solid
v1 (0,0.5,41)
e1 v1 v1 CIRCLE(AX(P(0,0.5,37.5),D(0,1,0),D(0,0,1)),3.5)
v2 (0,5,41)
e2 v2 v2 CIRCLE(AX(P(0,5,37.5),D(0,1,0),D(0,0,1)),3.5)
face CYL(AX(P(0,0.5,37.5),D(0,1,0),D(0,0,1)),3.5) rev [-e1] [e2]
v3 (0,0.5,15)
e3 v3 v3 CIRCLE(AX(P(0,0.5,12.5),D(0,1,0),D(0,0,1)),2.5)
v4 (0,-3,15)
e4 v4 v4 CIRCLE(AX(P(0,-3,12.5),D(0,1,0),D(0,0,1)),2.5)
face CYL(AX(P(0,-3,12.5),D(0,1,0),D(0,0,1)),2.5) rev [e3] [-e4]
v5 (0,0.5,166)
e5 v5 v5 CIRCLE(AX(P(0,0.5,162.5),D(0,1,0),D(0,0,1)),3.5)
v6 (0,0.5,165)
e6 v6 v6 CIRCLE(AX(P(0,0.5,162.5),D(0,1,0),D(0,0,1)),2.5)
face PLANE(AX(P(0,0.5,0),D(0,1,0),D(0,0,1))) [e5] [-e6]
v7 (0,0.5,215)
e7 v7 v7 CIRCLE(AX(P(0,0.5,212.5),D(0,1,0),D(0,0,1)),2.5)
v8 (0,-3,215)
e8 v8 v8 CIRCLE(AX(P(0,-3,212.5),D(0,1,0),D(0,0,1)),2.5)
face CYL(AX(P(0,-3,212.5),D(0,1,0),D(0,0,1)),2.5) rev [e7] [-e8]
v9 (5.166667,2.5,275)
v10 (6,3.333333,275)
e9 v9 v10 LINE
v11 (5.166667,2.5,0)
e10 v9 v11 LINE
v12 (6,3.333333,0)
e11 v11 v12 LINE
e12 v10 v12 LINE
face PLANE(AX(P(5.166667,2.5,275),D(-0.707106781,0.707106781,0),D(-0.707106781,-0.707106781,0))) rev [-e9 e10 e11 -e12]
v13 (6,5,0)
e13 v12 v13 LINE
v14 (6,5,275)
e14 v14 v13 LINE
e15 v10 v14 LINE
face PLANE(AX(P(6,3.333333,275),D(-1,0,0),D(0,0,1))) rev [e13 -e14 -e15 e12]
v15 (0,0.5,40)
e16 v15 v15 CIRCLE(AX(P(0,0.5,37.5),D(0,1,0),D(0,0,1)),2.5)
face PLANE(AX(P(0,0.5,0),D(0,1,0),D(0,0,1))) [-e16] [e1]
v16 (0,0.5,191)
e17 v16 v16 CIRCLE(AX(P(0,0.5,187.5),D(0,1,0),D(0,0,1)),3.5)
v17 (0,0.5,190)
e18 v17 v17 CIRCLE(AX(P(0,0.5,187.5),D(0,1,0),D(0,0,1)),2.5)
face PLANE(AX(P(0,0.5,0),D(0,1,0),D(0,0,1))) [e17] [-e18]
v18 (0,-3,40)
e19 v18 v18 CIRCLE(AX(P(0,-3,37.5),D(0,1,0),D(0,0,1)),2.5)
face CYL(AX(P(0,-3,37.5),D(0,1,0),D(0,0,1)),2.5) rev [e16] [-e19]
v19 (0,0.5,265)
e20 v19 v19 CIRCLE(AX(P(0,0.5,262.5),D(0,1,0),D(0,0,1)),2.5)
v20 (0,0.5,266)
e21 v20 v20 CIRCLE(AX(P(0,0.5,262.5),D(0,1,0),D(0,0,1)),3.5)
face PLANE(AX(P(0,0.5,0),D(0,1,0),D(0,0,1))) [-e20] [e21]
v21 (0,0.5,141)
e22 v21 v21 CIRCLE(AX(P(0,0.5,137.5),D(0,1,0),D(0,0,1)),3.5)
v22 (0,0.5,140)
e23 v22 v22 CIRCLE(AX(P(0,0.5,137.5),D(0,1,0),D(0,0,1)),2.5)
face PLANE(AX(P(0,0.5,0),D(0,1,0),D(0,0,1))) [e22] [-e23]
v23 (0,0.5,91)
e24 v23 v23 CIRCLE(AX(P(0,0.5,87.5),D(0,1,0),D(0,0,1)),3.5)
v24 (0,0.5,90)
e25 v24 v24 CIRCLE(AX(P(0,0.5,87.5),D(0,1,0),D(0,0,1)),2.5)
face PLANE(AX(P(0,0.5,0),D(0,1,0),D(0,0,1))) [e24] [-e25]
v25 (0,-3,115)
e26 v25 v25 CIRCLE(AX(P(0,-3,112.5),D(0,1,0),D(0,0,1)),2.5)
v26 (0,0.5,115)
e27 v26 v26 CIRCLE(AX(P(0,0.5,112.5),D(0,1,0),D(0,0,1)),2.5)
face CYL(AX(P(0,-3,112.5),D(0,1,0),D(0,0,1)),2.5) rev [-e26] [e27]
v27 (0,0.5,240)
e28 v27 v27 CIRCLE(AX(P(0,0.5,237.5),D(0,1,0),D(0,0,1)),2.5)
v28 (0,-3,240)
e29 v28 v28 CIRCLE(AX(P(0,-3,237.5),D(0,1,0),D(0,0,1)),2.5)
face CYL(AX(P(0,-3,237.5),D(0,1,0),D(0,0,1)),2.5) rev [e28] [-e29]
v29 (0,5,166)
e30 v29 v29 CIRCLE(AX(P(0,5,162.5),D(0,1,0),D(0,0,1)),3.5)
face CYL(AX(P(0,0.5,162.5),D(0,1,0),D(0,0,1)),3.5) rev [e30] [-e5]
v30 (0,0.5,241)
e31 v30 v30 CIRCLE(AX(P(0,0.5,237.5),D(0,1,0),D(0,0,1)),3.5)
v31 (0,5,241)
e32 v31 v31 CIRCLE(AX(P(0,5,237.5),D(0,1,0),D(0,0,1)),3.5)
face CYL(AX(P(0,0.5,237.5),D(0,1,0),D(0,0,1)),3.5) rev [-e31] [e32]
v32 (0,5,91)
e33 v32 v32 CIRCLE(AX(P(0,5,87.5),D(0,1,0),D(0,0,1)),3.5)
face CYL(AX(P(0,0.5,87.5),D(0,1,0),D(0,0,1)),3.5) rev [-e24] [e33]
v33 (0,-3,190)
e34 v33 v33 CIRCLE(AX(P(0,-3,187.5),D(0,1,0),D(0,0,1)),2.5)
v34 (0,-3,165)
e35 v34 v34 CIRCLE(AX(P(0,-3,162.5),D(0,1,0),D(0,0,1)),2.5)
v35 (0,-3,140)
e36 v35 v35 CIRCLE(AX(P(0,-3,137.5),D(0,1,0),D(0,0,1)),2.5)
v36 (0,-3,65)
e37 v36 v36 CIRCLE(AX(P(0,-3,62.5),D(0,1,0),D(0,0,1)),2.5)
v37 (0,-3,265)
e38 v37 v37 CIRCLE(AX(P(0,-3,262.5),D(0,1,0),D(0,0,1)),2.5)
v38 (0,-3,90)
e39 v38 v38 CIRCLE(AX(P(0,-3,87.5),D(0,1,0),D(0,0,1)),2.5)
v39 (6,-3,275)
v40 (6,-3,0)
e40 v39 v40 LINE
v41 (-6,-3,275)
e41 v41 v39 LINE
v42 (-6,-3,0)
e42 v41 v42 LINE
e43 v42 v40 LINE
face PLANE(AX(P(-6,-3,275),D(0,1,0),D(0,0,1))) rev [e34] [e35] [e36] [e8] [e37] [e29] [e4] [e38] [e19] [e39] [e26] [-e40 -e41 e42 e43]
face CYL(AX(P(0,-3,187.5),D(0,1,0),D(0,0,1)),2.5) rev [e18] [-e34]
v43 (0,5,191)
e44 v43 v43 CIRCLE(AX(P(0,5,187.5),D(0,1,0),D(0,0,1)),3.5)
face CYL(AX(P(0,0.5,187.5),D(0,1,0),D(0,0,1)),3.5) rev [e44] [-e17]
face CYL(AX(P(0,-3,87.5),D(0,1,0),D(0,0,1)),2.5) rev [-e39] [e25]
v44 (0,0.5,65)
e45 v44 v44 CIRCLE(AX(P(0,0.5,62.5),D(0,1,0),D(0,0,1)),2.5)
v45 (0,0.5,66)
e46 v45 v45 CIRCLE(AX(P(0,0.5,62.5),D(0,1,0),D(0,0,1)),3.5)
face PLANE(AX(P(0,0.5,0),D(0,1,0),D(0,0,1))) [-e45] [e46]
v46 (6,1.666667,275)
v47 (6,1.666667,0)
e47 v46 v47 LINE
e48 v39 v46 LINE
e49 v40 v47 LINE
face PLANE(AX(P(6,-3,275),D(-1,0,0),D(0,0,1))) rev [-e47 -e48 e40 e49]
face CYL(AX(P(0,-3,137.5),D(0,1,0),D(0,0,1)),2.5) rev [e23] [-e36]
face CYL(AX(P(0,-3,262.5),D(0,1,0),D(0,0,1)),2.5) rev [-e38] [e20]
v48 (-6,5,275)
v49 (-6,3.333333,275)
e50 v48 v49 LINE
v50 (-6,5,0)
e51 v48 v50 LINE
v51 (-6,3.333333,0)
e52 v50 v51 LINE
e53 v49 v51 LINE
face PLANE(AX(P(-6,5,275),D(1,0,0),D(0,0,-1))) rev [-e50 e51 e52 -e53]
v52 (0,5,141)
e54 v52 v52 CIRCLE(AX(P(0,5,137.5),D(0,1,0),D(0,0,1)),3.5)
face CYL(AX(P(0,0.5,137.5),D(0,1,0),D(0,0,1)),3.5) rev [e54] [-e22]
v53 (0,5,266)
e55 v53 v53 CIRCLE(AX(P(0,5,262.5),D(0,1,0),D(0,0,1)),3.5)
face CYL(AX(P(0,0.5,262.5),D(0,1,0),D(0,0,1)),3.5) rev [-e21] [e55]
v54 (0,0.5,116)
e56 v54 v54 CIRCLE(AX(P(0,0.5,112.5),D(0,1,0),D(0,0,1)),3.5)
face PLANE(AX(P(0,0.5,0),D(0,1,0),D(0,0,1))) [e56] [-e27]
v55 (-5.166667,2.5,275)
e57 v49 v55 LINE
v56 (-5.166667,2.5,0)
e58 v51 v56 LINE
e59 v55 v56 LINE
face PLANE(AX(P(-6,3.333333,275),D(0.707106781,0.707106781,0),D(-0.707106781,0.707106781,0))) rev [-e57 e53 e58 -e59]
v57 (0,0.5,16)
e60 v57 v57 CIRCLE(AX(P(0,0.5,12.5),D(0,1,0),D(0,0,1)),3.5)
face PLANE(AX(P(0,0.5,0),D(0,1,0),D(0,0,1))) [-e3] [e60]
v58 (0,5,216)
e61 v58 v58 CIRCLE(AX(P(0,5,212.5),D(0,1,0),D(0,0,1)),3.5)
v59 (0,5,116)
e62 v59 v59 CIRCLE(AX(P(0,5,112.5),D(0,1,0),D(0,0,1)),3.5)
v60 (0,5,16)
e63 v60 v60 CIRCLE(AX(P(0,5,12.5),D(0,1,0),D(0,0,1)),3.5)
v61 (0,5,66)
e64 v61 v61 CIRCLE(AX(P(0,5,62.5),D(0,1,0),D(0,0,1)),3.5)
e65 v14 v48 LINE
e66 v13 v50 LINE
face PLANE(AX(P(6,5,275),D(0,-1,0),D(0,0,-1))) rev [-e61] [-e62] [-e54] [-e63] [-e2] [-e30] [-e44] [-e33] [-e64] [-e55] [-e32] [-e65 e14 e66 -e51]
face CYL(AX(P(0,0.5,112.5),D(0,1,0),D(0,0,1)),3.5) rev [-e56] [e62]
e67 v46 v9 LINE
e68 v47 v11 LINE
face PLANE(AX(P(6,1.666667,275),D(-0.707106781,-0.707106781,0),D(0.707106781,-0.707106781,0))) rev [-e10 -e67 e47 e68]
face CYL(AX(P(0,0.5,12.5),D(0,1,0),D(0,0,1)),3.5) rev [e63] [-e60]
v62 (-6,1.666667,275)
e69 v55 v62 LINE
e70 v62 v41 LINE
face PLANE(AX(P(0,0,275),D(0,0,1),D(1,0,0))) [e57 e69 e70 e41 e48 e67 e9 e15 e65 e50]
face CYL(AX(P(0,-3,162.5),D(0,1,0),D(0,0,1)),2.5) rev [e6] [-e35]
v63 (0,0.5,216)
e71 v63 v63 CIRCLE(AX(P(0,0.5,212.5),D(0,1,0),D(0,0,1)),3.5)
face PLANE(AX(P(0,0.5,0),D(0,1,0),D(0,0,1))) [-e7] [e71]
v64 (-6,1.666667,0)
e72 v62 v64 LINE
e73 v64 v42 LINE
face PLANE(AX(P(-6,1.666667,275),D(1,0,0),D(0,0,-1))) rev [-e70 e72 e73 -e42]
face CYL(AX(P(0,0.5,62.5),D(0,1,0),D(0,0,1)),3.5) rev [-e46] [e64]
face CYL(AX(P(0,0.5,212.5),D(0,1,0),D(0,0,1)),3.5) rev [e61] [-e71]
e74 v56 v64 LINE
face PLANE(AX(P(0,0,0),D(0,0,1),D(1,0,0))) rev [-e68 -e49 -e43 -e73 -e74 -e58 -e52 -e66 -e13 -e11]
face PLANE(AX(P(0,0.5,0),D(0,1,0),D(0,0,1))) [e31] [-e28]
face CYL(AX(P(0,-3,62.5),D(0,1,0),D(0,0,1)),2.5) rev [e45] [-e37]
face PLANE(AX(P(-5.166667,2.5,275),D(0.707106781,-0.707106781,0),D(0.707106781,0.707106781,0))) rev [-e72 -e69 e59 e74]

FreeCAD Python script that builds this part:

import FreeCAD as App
import Part
import Sketcher

V = App.Vector
Q = App.Units.Quantity

doc = App.newDocument("Part")
params = doc.addObject("Spreadsheet::Sheet", "Params")
for row, (alias, value) in enumerate([
    ("sketch1_width", "12 mm"),
    ("pad1_length", "275 mm"),
    ("sketch2_diameter", "5 mm"),
    ("sketch3_diameter", "7 mm"),
    ("sketch3_diameter2", "5 mm"),
    ("pocket2_length", "4.5 mm"),
], start=1):
    params.set(f"A{row}", alias)
    params.set(f"B{row}", "=" + value)
    params.setAlias(f"B{row}", alias)

body = doc.addObject("PartDesign::Body", "Body")

# Sketch on XY plane
sketch1 = body.newObject("Sketcher::SketchObject", "Sketch")
sketch1.AttachmentSupport = (doc.getObject("XY_Plane"), [""])
sketch1.MapMode = "FlatFace"
sketch1.addGeometry([
    Part.LineSegment(V(6, -3, 0), V(6, 1.7, 0)),  # 0
    Part.LineSegment(V(6, 1.7, 0), V(5.2, 2.5, 0)),  # 1
    Part.LineSegment(V(5.2, 2.5, 0), V(6, 3.3, 0)),  # 2
    Part.LineSegment(V(6, 3.3, 0), V(6, 5, 0)),  # 3
    Part.LineSegment(V(6, 5, 0), V(-6, 5, 0)),  # 4
    Part.LineSegment(V(-6, 5, 0), V(-6, 3.3, 0)),  # 5
    Part.LineSegment(V(-6, 3.3, 0), V(-5.2, 2.5, 0)),  # 6
    Part.LineSegment(V(-5.2, 2.5, 0), V(-6, 1.7, 0)),  # 7
    Part.LineSegment(V(-6, 1.7, 0), V(-6, -3, 0)),  # 8
    Part.LineSegment(V(-6, -3, 0), V(6, -3, 0)),  # 9
], False)
sketch1.addConstraint([
    Sketcher.Constraint("Coincident", 0, 2, 1, 1),
    Sketcher.Constraint("Coincident", 1, 2, 2, 1),
    Sketcher.Constraint("Coincident", 2, 2, 3, 1),
    Sketcher.Constraint("Coincident", 3, 2, 4, 1),
    Sketcher.Constraint("Coincident", 4, 2, 5, 1),
    Sketcher.Constraint("Coincident", 5, 2, 6, 1),
    Sketcher.Constraint("Coincident", 6, 2, 7, 1),
    Sketcher.Constraint("Coincident", 7, 2, 8, 1),
    Sketcher.Constraint("Coincident", 8, 2, 9, 1),
    Sketcher.Constraint("Coincident", 9, 2, 0, 1),
    Sketcher.Constraint("Vertical", 0),
    Sketcher.Constraint("Vertical", 3),
    Sketcher.Constraint("Horizontal", 4),
    Sketcher.Constraint("Vertical", 5),
    Sketcher.Constraint("Vertical", 8),
    Sketcher.Constraint("Horizontal", 9),
    Sketcher.Constraint("Symmetric", 2, 2, 5, 2, -2),
    Sketcher.Constraint("Symmetric", 1, 2, 6, 2, -2),
    Sketcher.Constraint("Symmetric", 0, 2, 7, 2, -2),
    Sketcher.Constraint("Perpendicular", 1, 2),
    Sketcher.Constraint("Perpendicular", 2, 6),
    Sketcher.Constraint("Vertical", 0, 2, 2, 2),
    Sketcher.Constraint("DistanceX", 4, 2, 4, 1, Q("12 mm")),
    Sketcher.Constraint("DistanceY", -1, 1, 3, 2, Q("5 mm")),
    Sketcher.Constraint("DistanceY", 8, 2, -1, 1, Q("3 mm")),
    Sketcher.Constraint("DistanceY", -1, 1, 1, 2, Q("2.5 mm")),
    Sketcher.Constraint("Distance", 1, Q("1.178511 mm")),
])
sketch1.setExpression("Constraints[22]", "Params.sketch1_width")
pad1 = body.newObject("PartDesign::Pad", "Pad")
pad1.Profile = sketch1
pad1.setExpression("Length", "Params.pad1_length")

# Sketch on XZ plane
sketch2 = body.newObject("Sketcher::SketchObject", "Sketch001")
sketch2.AttachmentSupport = (doc.getObject("XZ_Plane"), [""])
sketch2.MapMode = "FlatFace"
sketch2.AttachmentOffset = App.Placement(V(0, 0, -5), App.Rotation())
sketch2.addGeometry([
    Part.Circle(V(0, 12.5, 0), V(0, 0, 1), 2.5),  # 0
    Part.Circle(V(0, 262.5, 0), V(0, 0, 1), 2.5),  # 1
    Part.Circle(V(0, 137.5, 0), V(0, 0, 1), 2.5),  # 2
    Part.Circle(V(0, 37.5, 0), V(0, 0, 1), 2.5),  # 3
    Part.Circle(V(0, 62.5, 0), V(0, 0, 1), 2.5),  # 4
    Part.Circle(V(0, 87.5, 0), V(0, 0, 1), 2.5),  # 5
    Part.Circle(V(0, 112.5, 0), V(0, 0, 1), 2.5),  # 6
    Part.Circle(V(0, 162.5, 0), V(0, 0, 1), 2.5),  # 7
    Part.Circle(V(0, 187.5, 0), V(0, 0, 1), 2.5),  # 8
    Part.Circle(V(0, 212.5, 0), V(0, 0, 1), 2.5),  # 9
    Part.Circle(V(0, 237.5, 0), V(0, 0, 1), 2.5),  # 10
], False)
sketch2.addConstraint([
    Sketcher.Constraint("Equal", 0, 1),
    Sketcher.Constraint("Equal", 1, 2),
    Sketcher.Constraint("Equal", 2, 3),
    Sketcher.Constraint("Equal", 3, 4),
    Sketcher.Constraint("Equal", 4, 5),
    Sketcher.Constraint("Equal", 5, 6),
    Sketcher.Constraint("Equal", 6, 7),
    Sketcher.Constraint("Equal", 7, 8),
    Sketcher.Constraint("Equal", 8, 9),
    Sketcher.Constraint("Equal", 9, 10),
    Sketcher.Constraint("PointOnObject", 0, 3, -2),
    Sketcher.Constraint("PointOnObject", 1, 3, -2),
    Sketcher.Constraint("PointOnObject", 2, 3, -2),
    Sketcher.Constraint("PointOnObject", 3, 3, -2),
    Sketcher.Constraint("PointOnObject", 4, 3, -2),
    Sketcher.Constraint("PointOnObject", 5, 3, -2),
    Sketcher.Constraint("PointOnObject", 6, 3, -2),
    Sketcher.Constraint("PointOnObject", 7, 3, -2),
    Sketcher.Constraint("PointOnObject", 8, 3, -2),
    Sketcher.Constraint("PointOnObject", 9, 3, -2),
    Sketcher.Constraint("PointOnObject", 10, 3, -2),
    Sketcher.Constraint("Diameter", 0, Q("5 mm")),
    Sketcher.Constraint("DistanceY", 0, 3, 1, 3, Q("250 mm")),
    Sketcher.Constraint("DistanceY", 0, 3, 2, 3, Q("125 mm")),
    Sketcher.Constraint("DistanceY", 0, 3, 3, 3, Q("25 mm")),
    Sketcher.Constraint("DistanceY", 3, 3, 4, 3, Q("25 mm")),
    Sketcher.Constraint("DistanceY", 4, 3, 5, 3, Q("25 mm")),
    Sketcher.Constraint("DistanceY", 6, 3, 2, 3, Q("25 mm")),
    Sketcher.Constraint("DistanceY", 2, 3, 7, 3, Q("25 mm")),
    Sketcher.Constraint("DistanceY", 7, 3, 8, 3, Q("25 mm")),
    Sketcher.Constraint("DistanceY", 8, 3, 9, 3, Q("25 mm")),
    Sketcher.Constraint("DistanceY", 10, 3, 1, 3, Q("25 mm")),
    Sketcher.Constraint("DistanceY", -1, 1, 0, 3, Q("12.5 mm")),
])
sketch2.setExpression("Constraints[21]", "Params.sketch2_diameter")
pocket1 = body.newObject("PartDesign::Pocket", "Pocket")
pocket1.Profile = sketch2
pocket1.Type = "ThroughAll"
pocket1.Reversed = True

# Sketch on XZ plane
sketch3 = body.newObject("Sketcher::SketchObject", "Sketch002")
sketch3.AttachmentSupport = (doc.getObject("XZ_Plane"), [""])
sketch3.MapMode = "FlatFace"
sketch3.AttachmentOffset = App.Placement(V(0, 0, -5), App.Rotation())
sketch3.addGeometry([
    Part.Circle(V(0, 12.5, 0), V(0, 0, 1), 3.5),  # 0
    Part.Circle(V(0, 12.5, 0), V(0, 0, 1), 2.5),  # 1
    Part.Circle(V(0, 262.5, 0), V(0, 0, 1), 3.5),  # 2
    Part.Circle(V(0, 262.5, 0), V(0, 0, 1), 2.5),  # 3
    Part.Circle(V(0, 137.5, 0), V(0, 0, 1), 3.5),  # 4
    Part.Circle(V(0, 137.5, 0), V(0, 0, 1), 2.5),  # 5
    Part.Circle(V(0, 37.5, 0), V(0, 0, 1), 3.5),  # 6
    Part.Circle(V(0, 37.5, 0), V(0, 0, 1), 2.5),  # 7
    Part.Circle(V(0, 62.5, 0), V(0, 0, 1), 3.5),  # 8
    Part.Circle(V(0, 62.5, 0), V(0, 0, 1), 2.5),  # 9
    Part.Circle(V(0, 87.5, 0), V(0, 0, 1), 3.5),  # 10
    Part.Circle(V(0, 87.5, 0), V(0, 0, 1), 2.5),  # 11
    Part.Circle(V(0, 112.5, 0), V(0, 0, 1), 3.5),  # 12
    Part.Circle(V(0, 112.5, 0), V(0, 0, 1), 2.5),  # 13
    Part.Circle(V(0, 162.5, 0), V(0, 0, 1), 3.5),  # 14
    Part.Circle(V(0, 162.5, 0), V(0, 0, 1), 2.5),  # 15
    Part.Circle(V(0, 187.5, 0), V(0, 0, 1), 3.5),  # 16
    Part.Circle(V(0, 187.5, 0), V(0, 0, 1), 2.5),  # 17
    Part.Circle(V(0, 212.5, 0), V(0, 0, 1), 3.5),  # 18
    Part.Circle(V(0, 212.5, 0), V(0, 0, 1), 2.5),  # 19
    Part.Circle(V(0, 237.5, 0), V(0, 0, 1), 3.5),  # 20
    Part.Circle(V(0, 237.5, 0), V(0, 0, 1), 2.5),  # 21
], False)
sketch3.addConstraint([
    Sketcher.Constraint("Coincident", 1, 3, 0, 3),
    Sketcher.Constraint("Coincident", 3, 3, 2, 3),
    Sketcher.Constraint("Coincident", 5, 3, 4, 3),
    Sketcher.Constraint("Coincident", 7, 3, 6, 3),
    Sketcher.Constraint("Coincident", 9, 3, 8, 3),
    Sketcher.Constraint("Coincident", 11, 3, 10, 3),
    Sketcher.Constraint("Coincident", 13, 3, 12, 3),
    Sketcher.Constraint("Coincident", 15, 3, 14, 3),
    Sketcher.Constraint("Coincident", 17, 3, 16, 3),
    Sketcher.Constraint("Coincident", 19, 3, 18, 3),
    Sketcher.Constraint("Coincident", 21, 3, 20, 3),
    Sketcher.Constraint("Equal", 0, 2),
    Sketcher.Constraint("Equal", 1, 3),
    Sketcher.Constraint("Equal", 2, 4),
    Sketcher.Constraint("Equal", 3, 5),
    Sketcher.Constraint("Equal", 4, 6),
    Sketcher.Constraint("Equal", 5, 7),
    Sketcher.Constraint("Equal", 6, 8),
    Sketcher.Constraint("Equal", 7, 9),
    Sketcher.Constraint("Equal", 8, 10),
    Sketcher.Constraint("Equal", 9, 11),
    Sketcher.Constraint("Equal", 10, 12),
    Sketcher.Constraint("Equal", 11, 13),
    Sketcher.Constraint("Equal", 12, 14),
    Sketcher.Constraint("Equal", 13, 15),
    Sketcher.Constraint("Equal", 14, 16),
    Sketcher.Constraint("Equal", 15, 17),
    Sketcher.Constraint("Equal", 16, 18),
    Sketcher.Constraint("Equal", 17, 19),
    Sketcher.Constraint("Equal", 18, 20),
    Sketcher.Constraint("Equal", 19, 21),
    Sketcher.Constraint("PointOnObject", 0, 3, -2),
    Sketcher.Constraint("PointOnObject", 2, 3, -2),
    Sketcher.Constraint("PointOnObject", 4, 3, -2),
    Sketcher.Constraint("PointOnObject", 6, 3, -2),
    Sketcher.Constraint("PointOnObject", 8, 3, -2),
    Sketcher.Constraint("PointOnObject", 10, 3, -2),
    Sketcher.Constraint("PointOnObject", 12, 3, -2),
    Sketcher.Constraint("PointOnObject", 14, 3, -2),
    Sketcher.Constraint("PointOnObject", 16, 3, -2),
    Sketcher.Constraint("PointOnObject", 18, 3, -2),
    Sketcher.Constraint("PointOnObject", 20, 3, -2),
    Sketcher.Constraint("Diameter", 0, Q("7 mm")),
    Sketcher.Constraint("Diameter", 1, Q("5 mm")),
    Sketcher.Constraint("DistanceY", 0, 3, 2, 3, Q("250 mm")),
    Sketcher.Constraint("DistanceY", 0, 3, 4, 3, Q("125 mm")),
    Sketcher.Constraint("DistanceY", 0, 3, 6, 3, Q("25 mm")),
    Sketcher.Constraint("DistanceY", 6, 3, 8, 3, Q("25 mm")),
    Sketcher.Constraint("DistanceY", 8, 3, 10, 3, Q("25 mm")),
    Sketcher.Constraint("DistanceY", 12, 3, 4, 3, Q("25 mm")),
    Sketcher.Constraint("DistanceY", 4, 3, 14, 3, Q("25 mm")),
    Sketcher.Constraint("DistanceY", 14, 3, 16, 3, Q("25 mm")),
    Sketcher.Constraint("DistanceY", 16, 3, 18, 3, Q("25 mm")),
    Sketcher.Constraint("DistanceY", 20, 3, 2, 3, Q("25 mm")),
    Sketcher.Constraint("DistanceY", -1, 1, 0, 3, Q("12.5 mm")),
])
sketch3.setExpression("Constraints[42]", "Params.sketch3_diameter")
sketch3.setExpression("Constraints[43]", "Params.sketch3_diameter2")
pocket2 = body.newObject("PartDesign::Pocket", "Pocket001")
pocket2.Profile = sketch3
pocket2.setExpression("Length", "Params.pocket2_length")
pocket2.Reversed = True

doc.recompute()
